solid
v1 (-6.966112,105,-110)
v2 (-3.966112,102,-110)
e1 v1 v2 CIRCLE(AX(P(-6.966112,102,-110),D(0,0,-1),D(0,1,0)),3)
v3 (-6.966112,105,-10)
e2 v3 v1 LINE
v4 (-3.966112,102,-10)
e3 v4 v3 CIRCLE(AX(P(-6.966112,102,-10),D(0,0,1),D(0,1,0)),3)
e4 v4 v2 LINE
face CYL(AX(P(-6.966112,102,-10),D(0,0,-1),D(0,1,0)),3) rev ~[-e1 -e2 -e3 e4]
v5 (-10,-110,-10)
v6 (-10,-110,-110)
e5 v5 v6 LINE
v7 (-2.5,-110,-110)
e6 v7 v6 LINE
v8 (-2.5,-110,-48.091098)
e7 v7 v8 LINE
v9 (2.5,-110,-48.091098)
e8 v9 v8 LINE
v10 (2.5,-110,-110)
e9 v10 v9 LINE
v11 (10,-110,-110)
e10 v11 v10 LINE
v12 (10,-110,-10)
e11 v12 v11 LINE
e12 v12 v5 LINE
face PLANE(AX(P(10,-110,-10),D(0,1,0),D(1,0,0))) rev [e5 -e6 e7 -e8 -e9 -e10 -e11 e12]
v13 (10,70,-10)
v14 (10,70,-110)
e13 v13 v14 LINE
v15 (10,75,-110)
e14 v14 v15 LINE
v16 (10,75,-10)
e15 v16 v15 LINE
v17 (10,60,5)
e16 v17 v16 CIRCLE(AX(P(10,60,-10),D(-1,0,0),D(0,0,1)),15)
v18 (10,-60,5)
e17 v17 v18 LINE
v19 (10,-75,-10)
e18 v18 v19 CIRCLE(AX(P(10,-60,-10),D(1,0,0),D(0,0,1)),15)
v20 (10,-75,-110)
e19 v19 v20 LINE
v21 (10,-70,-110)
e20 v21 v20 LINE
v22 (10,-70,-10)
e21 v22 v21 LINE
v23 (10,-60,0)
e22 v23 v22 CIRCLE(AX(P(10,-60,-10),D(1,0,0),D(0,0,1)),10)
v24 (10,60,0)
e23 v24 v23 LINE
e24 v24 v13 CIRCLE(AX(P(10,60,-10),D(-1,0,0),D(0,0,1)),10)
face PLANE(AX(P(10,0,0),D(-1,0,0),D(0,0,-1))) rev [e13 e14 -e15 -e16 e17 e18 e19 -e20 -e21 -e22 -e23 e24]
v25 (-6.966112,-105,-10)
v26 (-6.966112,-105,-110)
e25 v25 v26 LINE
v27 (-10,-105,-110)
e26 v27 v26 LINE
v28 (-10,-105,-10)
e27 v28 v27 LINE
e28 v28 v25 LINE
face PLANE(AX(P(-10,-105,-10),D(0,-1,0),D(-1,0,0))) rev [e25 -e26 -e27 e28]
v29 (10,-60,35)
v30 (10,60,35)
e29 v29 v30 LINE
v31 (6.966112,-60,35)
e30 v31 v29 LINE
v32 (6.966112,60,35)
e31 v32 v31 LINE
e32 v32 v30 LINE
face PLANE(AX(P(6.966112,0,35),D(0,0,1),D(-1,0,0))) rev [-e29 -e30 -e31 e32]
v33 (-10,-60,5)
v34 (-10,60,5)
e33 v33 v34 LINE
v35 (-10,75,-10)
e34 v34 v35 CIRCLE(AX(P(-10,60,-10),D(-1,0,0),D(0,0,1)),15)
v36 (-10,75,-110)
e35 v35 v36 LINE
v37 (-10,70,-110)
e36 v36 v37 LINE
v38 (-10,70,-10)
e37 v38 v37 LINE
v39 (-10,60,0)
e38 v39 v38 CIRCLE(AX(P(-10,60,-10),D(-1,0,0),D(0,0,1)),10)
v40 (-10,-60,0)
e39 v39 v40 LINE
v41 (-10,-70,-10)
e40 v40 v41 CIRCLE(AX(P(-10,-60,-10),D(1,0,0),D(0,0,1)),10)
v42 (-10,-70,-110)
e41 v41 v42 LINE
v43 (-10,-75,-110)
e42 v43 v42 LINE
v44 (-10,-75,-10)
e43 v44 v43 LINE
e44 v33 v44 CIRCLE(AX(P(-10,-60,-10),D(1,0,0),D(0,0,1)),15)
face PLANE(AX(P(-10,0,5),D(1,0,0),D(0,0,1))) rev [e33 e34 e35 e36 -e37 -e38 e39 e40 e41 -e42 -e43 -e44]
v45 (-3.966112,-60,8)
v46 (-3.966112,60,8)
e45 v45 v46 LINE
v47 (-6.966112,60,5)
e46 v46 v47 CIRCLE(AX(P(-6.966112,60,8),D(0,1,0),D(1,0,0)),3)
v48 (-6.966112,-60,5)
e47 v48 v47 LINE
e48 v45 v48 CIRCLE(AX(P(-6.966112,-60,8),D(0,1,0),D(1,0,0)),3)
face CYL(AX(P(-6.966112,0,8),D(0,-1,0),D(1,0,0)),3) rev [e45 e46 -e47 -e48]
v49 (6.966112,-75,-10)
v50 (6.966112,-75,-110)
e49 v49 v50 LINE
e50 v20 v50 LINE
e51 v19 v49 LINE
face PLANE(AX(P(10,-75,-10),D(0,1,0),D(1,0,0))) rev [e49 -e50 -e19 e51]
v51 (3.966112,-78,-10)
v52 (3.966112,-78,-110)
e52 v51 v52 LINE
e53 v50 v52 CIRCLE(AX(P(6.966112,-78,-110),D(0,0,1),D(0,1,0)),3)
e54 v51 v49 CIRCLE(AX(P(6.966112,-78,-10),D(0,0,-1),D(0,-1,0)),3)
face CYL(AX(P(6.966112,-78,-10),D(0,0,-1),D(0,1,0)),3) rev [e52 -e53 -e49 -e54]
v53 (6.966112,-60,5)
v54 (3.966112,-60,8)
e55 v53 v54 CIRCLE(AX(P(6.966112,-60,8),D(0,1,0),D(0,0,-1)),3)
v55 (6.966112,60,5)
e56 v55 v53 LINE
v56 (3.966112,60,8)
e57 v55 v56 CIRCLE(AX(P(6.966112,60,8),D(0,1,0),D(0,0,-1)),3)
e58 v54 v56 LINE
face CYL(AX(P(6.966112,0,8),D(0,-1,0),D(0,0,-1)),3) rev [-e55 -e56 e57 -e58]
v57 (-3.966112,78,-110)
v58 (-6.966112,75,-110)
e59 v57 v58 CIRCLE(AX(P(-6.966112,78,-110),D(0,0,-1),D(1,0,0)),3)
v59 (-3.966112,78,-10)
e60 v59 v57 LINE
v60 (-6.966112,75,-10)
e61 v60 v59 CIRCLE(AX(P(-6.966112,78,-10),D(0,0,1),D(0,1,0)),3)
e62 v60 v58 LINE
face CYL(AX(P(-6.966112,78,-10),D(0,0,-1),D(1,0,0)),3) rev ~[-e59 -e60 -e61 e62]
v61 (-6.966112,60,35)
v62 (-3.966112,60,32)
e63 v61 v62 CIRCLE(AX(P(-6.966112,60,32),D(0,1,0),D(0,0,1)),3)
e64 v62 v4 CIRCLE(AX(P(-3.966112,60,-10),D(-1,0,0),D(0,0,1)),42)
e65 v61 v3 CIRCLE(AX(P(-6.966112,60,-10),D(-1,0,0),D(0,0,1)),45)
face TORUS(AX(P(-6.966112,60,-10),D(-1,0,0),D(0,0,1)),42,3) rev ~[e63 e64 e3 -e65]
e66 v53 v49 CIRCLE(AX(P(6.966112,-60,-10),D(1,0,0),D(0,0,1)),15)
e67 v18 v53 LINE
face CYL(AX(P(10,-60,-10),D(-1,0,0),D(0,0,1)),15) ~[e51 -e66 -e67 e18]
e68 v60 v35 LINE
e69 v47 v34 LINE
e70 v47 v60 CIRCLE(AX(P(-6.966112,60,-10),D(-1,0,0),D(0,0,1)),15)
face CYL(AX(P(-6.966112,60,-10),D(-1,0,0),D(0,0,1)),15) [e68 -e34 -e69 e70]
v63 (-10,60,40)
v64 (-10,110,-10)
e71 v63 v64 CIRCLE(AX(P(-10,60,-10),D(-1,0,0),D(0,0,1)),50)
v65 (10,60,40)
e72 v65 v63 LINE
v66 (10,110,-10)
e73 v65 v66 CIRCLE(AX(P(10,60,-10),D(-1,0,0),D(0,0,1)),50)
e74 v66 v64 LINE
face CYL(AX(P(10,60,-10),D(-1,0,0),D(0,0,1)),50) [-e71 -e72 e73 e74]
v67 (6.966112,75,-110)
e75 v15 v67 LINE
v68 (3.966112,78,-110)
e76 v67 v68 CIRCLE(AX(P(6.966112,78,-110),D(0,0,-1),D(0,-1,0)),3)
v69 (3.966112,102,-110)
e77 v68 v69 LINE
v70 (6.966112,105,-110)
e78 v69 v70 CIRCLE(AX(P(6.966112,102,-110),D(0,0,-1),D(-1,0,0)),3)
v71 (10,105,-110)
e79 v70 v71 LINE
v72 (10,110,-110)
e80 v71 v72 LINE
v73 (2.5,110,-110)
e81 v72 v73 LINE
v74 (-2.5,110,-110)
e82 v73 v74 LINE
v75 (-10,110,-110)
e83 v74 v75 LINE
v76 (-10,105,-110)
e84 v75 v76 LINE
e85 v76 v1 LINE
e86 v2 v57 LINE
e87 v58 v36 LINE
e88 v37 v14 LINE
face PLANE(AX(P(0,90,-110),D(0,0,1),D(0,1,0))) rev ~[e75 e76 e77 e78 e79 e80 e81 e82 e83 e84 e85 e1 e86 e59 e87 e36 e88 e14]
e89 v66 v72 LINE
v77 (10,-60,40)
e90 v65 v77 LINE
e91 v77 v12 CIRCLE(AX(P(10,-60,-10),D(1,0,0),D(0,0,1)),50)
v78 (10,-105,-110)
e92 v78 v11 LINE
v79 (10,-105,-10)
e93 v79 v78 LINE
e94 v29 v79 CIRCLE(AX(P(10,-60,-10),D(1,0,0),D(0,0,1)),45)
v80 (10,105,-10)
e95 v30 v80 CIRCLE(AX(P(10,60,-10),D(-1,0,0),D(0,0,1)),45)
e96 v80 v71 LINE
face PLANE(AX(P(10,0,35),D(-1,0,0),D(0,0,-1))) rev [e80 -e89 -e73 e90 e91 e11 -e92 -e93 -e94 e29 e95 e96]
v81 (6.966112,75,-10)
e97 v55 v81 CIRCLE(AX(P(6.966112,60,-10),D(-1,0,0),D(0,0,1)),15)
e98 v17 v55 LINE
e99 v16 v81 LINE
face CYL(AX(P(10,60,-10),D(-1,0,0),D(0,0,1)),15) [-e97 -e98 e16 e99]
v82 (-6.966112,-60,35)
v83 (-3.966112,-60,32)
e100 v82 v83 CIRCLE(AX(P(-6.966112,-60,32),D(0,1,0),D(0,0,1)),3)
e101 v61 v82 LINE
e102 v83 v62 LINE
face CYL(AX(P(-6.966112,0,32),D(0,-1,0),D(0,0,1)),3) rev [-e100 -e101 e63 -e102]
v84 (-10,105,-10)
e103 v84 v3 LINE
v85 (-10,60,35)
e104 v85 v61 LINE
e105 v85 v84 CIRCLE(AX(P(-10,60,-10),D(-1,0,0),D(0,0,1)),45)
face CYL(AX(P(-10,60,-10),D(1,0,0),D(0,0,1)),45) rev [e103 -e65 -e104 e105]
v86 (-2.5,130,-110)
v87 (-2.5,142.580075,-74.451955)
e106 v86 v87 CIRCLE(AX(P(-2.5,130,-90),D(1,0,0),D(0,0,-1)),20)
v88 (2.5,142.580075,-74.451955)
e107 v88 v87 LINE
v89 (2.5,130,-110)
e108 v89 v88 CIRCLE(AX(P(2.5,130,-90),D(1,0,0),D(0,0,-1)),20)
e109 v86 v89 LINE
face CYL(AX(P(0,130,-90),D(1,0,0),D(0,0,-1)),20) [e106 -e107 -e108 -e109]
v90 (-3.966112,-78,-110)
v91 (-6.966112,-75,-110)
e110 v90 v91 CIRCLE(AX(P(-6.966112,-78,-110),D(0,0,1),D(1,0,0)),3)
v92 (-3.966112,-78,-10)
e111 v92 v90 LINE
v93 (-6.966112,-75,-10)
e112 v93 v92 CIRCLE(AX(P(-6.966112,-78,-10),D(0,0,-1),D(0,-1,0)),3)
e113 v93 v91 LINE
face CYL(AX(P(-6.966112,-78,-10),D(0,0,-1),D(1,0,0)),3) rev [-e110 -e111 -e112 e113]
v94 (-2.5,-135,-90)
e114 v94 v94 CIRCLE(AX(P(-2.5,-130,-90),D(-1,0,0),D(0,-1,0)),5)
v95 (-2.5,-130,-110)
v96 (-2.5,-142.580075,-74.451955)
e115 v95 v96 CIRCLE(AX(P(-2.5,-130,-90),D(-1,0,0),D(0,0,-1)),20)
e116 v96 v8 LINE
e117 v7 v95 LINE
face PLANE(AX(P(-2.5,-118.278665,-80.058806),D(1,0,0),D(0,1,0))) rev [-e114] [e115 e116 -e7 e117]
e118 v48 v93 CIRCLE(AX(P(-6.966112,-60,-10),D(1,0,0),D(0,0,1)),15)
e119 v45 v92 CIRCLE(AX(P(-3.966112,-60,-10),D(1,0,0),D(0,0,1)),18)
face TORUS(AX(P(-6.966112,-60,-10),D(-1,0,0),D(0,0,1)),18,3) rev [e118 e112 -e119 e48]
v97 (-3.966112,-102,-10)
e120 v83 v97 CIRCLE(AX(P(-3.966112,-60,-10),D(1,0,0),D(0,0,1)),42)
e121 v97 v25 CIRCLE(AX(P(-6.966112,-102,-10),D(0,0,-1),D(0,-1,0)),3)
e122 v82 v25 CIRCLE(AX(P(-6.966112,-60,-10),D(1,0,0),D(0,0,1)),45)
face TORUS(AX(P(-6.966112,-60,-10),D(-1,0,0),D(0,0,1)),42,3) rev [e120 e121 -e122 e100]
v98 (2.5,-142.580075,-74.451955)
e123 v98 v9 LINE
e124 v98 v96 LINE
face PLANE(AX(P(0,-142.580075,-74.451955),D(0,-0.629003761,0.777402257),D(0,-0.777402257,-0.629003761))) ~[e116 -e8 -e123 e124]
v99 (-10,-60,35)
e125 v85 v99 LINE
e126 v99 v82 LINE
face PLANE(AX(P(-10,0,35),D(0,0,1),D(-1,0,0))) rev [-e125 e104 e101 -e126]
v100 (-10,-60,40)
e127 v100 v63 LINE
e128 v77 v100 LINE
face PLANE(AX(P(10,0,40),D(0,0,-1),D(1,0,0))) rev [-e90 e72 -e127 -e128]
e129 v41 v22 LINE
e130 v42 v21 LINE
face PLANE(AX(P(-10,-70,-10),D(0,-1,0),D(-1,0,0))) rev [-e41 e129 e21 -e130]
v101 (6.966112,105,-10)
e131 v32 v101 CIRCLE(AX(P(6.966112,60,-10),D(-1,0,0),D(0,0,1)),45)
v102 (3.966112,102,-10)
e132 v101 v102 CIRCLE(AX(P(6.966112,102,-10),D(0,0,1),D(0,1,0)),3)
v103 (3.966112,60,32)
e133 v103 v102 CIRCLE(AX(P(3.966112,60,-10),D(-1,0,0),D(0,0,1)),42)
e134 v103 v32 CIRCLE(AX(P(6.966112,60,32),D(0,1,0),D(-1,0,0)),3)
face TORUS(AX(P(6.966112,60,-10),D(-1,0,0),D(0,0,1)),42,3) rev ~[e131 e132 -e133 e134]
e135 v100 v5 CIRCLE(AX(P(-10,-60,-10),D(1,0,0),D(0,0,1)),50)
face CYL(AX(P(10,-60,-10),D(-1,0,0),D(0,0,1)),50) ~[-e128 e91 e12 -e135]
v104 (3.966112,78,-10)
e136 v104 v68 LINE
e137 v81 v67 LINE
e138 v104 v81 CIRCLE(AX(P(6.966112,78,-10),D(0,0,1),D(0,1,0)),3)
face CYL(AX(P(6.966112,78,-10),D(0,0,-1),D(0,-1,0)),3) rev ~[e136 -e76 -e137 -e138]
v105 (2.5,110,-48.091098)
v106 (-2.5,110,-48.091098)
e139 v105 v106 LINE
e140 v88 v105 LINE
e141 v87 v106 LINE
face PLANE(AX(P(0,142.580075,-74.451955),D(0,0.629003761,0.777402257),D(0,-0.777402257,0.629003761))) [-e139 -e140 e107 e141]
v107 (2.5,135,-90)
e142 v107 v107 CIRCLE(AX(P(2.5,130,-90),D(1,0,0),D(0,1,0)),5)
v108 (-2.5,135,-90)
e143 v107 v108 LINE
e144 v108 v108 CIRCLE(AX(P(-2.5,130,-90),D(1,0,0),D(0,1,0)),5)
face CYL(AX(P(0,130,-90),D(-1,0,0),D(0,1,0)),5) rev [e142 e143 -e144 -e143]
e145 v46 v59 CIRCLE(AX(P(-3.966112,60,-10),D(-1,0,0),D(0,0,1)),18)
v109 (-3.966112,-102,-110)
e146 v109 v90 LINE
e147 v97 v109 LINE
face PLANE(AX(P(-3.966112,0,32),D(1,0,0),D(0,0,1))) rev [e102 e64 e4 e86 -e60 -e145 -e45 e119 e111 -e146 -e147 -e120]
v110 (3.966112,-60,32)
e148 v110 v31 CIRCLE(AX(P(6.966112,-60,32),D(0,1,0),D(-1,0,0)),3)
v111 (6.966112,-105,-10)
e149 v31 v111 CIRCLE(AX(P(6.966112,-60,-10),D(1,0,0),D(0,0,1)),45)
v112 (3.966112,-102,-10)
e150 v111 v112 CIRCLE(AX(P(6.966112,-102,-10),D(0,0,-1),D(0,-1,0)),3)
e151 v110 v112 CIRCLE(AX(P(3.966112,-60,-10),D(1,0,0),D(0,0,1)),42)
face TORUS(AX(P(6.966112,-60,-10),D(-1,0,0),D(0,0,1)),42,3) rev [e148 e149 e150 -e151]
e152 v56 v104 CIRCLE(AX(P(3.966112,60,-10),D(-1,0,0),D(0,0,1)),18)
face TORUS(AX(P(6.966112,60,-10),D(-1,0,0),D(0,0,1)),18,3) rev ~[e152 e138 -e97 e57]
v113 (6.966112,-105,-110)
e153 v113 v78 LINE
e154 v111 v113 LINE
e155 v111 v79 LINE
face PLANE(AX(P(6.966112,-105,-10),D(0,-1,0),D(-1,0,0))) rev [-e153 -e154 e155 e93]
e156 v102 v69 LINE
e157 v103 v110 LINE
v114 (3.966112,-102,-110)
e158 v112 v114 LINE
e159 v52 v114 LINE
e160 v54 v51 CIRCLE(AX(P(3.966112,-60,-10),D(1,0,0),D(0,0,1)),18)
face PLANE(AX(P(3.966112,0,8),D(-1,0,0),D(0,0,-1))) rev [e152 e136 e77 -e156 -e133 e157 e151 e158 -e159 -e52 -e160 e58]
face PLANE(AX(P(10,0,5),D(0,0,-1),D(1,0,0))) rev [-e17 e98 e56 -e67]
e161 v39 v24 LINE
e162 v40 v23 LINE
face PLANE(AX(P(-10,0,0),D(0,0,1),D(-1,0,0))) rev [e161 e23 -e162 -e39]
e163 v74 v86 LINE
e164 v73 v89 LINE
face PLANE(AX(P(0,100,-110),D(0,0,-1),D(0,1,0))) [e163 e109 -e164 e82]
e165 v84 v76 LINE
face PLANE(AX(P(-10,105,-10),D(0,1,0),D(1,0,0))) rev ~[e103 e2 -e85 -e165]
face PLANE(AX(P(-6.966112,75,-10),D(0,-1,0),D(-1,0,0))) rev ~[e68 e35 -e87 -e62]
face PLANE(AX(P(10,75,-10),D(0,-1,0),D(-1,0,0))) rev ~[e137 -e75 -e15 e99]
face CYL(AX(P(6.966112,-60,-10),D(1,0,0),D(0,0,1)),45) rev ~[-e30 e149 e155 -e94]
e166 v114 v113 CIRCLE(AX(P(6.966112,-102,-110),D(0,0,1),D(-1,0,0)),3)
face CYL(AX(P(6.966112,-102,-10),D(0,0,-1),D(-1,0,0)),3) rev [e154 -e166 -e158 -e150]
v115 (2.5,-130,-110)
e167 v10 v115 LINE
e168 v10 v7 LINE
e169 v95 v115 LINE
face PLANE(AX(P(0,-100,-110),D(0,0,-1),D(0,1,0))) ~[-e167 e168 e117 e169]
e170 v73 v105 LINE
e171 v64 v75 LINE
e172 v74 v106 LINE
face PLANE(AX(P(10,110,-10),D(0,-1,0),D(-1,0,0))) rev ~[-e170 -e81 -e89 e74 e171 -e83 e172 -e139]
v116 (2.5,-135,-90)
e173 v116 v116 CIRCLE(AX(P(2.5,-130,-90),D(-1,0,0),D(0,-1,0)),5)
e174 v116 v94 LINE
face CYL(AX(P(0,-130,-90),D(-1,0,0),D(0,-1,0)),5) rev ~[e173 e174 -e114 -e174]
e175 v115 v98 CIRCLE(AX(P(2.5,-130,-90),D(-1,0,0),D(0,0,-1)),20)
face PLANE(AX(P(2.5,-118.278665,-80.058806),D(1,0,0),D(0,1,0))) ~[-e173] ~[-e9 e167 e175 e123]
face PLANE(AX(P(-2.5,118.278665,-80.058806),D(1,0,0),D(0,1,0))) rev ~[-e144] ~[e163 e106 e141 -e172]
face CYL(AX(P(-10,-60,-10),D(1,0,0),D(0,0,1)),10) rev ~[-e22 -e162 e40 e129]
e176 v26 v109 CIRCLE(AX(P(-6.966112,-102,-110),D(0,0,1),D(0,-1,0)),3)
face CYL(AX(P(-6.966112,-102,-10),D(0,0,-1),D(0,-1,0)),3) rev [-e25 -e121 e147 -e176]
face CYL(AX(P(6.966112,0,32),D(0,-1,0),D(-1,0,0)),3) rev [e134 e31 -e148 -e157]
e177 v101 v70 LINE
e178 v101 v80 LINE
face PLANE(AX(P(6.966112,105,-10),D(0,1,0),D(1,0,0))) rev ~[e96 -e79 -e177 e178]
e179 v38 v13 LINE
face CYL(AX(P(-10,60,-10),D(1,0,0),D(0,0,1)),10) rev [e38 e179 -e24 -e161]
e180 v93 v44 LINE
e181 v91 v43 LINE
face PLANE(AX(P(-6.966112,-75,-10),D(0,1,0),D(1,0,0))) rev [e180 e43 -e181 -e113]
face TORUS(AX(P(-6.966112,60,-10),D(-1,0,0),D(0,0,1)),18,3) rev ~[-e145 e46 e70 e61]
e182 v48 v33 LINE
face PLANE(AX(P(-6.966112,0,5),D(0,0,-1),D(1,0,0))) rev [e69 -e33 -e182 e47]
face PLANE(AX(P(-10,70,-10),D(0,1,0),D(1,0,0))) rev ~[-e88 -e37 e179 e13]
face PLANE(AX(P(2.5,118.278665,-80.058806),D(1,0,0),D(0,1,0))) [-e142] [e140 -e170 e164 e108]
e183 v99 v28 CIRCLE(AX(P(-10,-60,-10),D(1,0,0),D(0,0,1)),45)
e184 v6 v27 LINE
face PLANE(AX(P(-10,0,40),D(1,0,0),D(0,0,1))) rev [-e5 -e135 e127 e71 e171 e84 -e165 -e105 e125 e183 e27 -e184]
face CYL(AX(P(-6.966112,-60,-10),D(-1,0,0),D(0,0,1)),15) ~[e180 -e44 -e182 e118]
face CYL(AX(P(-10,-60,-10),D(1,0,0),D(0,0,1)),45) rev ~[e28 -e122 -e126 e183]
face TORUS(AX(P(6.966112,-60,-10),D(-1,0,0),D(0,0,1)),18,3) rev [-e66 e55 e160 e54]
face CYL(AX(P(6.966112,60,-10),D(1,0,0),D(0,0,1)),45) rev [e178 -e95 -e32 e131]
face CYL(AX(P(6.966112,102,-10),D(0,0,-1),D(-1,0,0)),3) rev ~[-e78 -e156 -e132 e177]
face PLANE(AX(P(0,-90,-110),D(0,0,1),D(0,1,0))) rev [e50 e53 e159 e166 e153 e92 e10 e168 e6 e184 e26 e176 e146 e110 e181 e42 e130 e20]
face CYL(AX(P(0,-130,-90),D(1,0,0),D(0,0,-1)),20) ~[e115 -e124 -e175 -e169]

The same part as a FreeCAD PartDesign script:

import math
import FreeCAD as App
import Part
import Sketcher
from FreeCAD import Vector

doc = App.newDocument("Part")
body = doc.addObject("PartDesign::Body", "Body")

# Sketch on XZ plane
sketch1 = body.newObject("Sketcher::SketchObject", "Sketch")
sketch1.AttachmentSupport = (doc.getObject("XZ_Plane"), [""])
sketch1.MapMode = "FlatFace"
sketch1.addGeometry([
    Part.LineSegment(Vector(-10, 5, 0), Vector(-10, 0, 0)),  # 0
    Part.LineSegment(Vector(-10, 0, 0), Vector(10, 0, 0)),  # 1
    Part.LineSegment(Vector(10, 0, 0), Vector(10, 5, 0)),  # 2
    Part.LineSegment(Vector(10, 5, 0), Vector(6.966112, 5, 0)),  # 3
    Part.ArcOfCircle(Part.Circle(Vector(6.966112, 8, 0), Vector(0, 0, 1), 3), math.radians(180), math.radians(270)),  # 4
    Part.LineSegment(Vector(3.966112, 8, 0), Vector(3.966112, 32, 0)),  # 5
    Part.ArcOfCircle(Part.Circle(Vector(6.966112, 32, 0), Vector(0, 0, 1), 3), math.radians(90), math.radians(180)),  # 6
    Part.LineSegment(Vector(6.966112, 35, 0), Vector(10, 35, 0)),  # 7
    Part.LineSegment(Vector(10, 35, 0), Vector(10, 40, 0)),  # 8
    Part.LineSegment(Vector(10, 40, 0), Vector(-10, 40, 0)),  # 9
    Part.LineSegment(Vector(-10, 40, 0), Vector(-10, 35, 0)),  # 10
    Part.LineSegment(Vector(-10, 35, 0), Vector(-6.966112, 35, 0)),  # 11
    Part.ArcOfCircle(Part.Circle(Vector(-6.966112, 32, 0), Vector(0, 0, 1), 3), math.radians(0), math.radians(90)),  # 12
    Part.LineSegment(Vector(-3.966112, 32, 0), Vector(-3.966112, 8, 0)),  # 13
    Part.ArcOfCircle(Part.Circle(Vector(-6.966112, 8, 0), Vector(0, 0, 1), 3), math.radians(-90), math.radians(0)),  # 14
    Part.LineSegment(Vector(-6.966112, 5, 0), Vector(-10, 5, 0)),  # 15
], False)
sketch1.addConstraint([
    Sketcher.Constraint("Coincident", 0, 2, 1, 1),
    Sketcher.Constraint("Coincident", 1, 2, 2, 1),
    Sketcher.Constraint("Coincident", 2, 2, 3, 1),
    Sketcher.Constraint("Tangent", 3, 2, 4, 2),
    Sketcher.Constraint("Tangent", 4, 1, 5, 1),
    Sketcher.Constraint("Tangent", 5, 2, 6, 2),
    Sketcher.Constraint("Tangent", 6, 1, 7, 1),
    Sketcher.Constraint("Coincident", 7, 2, 8, 1),
    Sketcher.Constraint("Coincident", 8, 2, 9, 1),
    Sketcher.Constraint("Coincident", 9, 2, 10, 1),
    Sketcher.Constraint("Coincident", 10, 2, 11, 1),
    Sketcher.Constraint("Tangent", 11, 2, 12, 2),
    Sketcher.Constraint("Tangent", 12, 1, 13, 1),
    Sketcher.Constraint("Tangent", 13, 2, 14, 2),
    Sketcher.Constraint("Tangent", 14, 1, 15, 1),
    Sketcher.Constraint("Coincident", 15, 2, 0, 1),
    Sketcher.Constraint("Vertical", 0),
    Sketcher.Constraint("Horizontal", 1),
    Sketcher.Constraint("Vertical", 2),
    Sketcher.Constraint("Horizontal", 3),
    Sketcher.Constraint("Vertical", 5),
    Sketcher.Constraint("Horizontal", 7),
    Sketcher.Constraint("Vertical", 8),
    Sketcher.Constraint("Horizontal", 9),
    Sketcher.Constraint("Vertical", 10),
    Sketcher.Constraint("Horizontal", 11),
    Sketcher.Constraint("Vertical", 13),
    Sketcher.Constraint("Horizontal", 15),
    Sketcher.Constraint("Equal", 4, 6),
    Sketcher.Constraint("Equal", 6, 12),
    Sketcher.Constraint("Equal", 12, 14),
    Sketcher.Constraint("Symmetric", 0, 2, 1, 2, -1, 1),
    Sketcher.Constraint("Symmetric", 6, 3, 12, 3, -2),
    Sketcher.Constraint("Horizontal", 4, 3, 14, 3),
    Sketcher.Constraint("Vertical", 2, 2, 7, 2),
    Sketcher.Constraint("Vertical", 0, 2, 9, 2),
    Sketcher.Constraint("Equal", 2, 8),
    Sketcher.Constraint("Radius", 4, 3.0),
    Sketcher.Constraint("DistanceX", 1, 1, 1, 2, 20.0),
    Sketcher.Constraint("DistanceY", 0, 2, 0, 1, 5.0),
    Sketcher.Constraint("DistanceY", 5, 1, 5, 2, 24.0),
    Sketcher.Constraint("DistanceX", 3, 2, 3, 1, 3.033888),
])

# Sketch on YZ plane
sketch2 = body.newObject("Sketcher::SketchObject", "Sketch001")
sketch2.AttachmentSupport = (doc.getObject("YZ_Plane"), [""])
sketch2.MapMode = "FlatFace"
sketch2.addGeometry([
    Part.LineSegment(Vector(0, 0, 0), Vector(60, 0, 0)),
    Part.ArcOfCircle(Part.Circle(Vector(60, -10, 0), Vector(0, 0, 1), 10), math.radians(0), math.radians(90)),
    Part.LineSegment(Vector(70, -10, 0), Vector(70, -110, 0)),
], False)
sketch2.addConstraint([
    Sketcher.Constraint("Tangent", 0, 2, 1, 2),
    Sketcher.Constraint("Tangent", 1, 1, 2, 1),
    Sketcher.Constraint("Horizontal", 0),
    Sketcher.Constraint("Vertical", 2),
    Sketcher.Constraint("Coincident", 0, 1, -1, 1),
    Sketcher.Constraint("Radius", 1, 10.0),
    Sketcher.Constraint("DistanceX", 0, 1, 0, 2, 60.0),
    Sketcher.Constraint("DistanceY", 2, 2, 2, 1, 100.0),
])
doc.recompute()

additivepipe = body.newObject("PartDesign::AdditivePipe", "AdditivePipe")
additivepipe.Profile = sketch1
additivepipe.Spine = (sketch2, ["Edge1", "Edge2", "Edge3"])
body2 = doc.addObject("PartDesign::Body", "Body001")
doc.recompute()

body2.BaseFeature = body
doc.recompute()

mirroring = doc.addObject("Part::Mirroring", "Mirroring")
mirroring.Source = body
mirroring.Base = Vector(0, 0, 0)
mirroring.Normal = Vector(0, -1, 0)
body3 = doc.addObject("PartDesign::Body", "Body002")
body3.BaseFeature = mirroring
boolean = body2.newObject("PartDesign::Boolean", "Boolean")
boolean.Type = "Fuse"
boolean.addObjects([body3])
doc.recompute()

# Sketch on YZ plane
sketch3 = body2.newObject("Sketcher::SketchObject", "Sketch002")
sketch3.AttachmentSupport = (doc.getObject("YZ_Plane001"), [""])
sketch3.MapMode = "FlatFace"
sketch3.addGeometry([
    Part.LineSegment(Vector(100, -40, 0), Vector(100, -110, 0)),  # 0
    Part.LineSegment(Vector(100, -110, 0), Vector(130, -110, 0)),  # 1
    Part.ArcOfCircle(Part.Circle(Vector(130, -90, 0), Vector(0, 0, 1), 20), math.radians(-90), math.radians(51.02334)),  # 2
    Part.LineSegment(Vector(142.580075, -74.451955, 0), Vector(100, -40, 0)),  # 3
    Part.Circle(Vector(130, -90, 0), Vector(0, 0, 1), 5),  # 4
], False)
sketch3.addConstraint([
    Sketcher.Constraint("Coincident", 0, 2, 1, 1),
    Sketcher.Constraint("Tangent", 1, 2, 2, 1),
    Sketcher.Constraint("Tangent", 2, 2, 3, 1),
    Sketcher.Constraint("Coincident", 3, 2, 0, 1),
    Sketcher.Constraint("Vertical", 0),
    Sketcher.Constraint("Horizontal", 1),
    Sketcher.Constraint("Coincident", 4, 3, 2, 3),
    Sketcher.Constraint("Diameter", 4, 10.0),
    Sketcher.Constraint("Radius", 2, 20.0),
    Sketcher.Constraint("DistanceX", 1, 1, 1, 2, 30.0),
    Sketcher.Constraint("DistanceY", 0, 2, 0, 1, 70.0),
    Sketcher.Constraint("DistanceX", -1, 1, 2, 3, 130.0),
    Sketcher.Constraint("DistanceY", 2, 3, -1, 1, 90.0),
])
pad1 = body2.newObject("PartDesign::Pad", "Pad")
pad1.Profile = sketch3
pad1.Length = 5
pad1.Midplane = True
body4 = doc.addObject("PartDesign::Body", "Body003")
doc.recompute()

body4.BaseFeature = body2
doc.recompute()

mirroring2 = doc.addObject("Part::Mirroring", "Mirroring001")
mirroring2.Source = body2
mirroring2.Base = Vector(0, 0, 0)
mirroring2.Normal = Vector(0, -1, 0)
body5 = doc.addObject("PartDesign::Body", "Body004")
body5.BaseFeature = mirroring2
boolean2 = body4.newObject("PartDesign::Boolean", "Boolean001")
boolean2.Type = "Fuse"
boolean2.addObjects([body5])
doc.recompute()
mirroring.Visibility = False
mirroring2.Visibility = False

doc.recompute()
